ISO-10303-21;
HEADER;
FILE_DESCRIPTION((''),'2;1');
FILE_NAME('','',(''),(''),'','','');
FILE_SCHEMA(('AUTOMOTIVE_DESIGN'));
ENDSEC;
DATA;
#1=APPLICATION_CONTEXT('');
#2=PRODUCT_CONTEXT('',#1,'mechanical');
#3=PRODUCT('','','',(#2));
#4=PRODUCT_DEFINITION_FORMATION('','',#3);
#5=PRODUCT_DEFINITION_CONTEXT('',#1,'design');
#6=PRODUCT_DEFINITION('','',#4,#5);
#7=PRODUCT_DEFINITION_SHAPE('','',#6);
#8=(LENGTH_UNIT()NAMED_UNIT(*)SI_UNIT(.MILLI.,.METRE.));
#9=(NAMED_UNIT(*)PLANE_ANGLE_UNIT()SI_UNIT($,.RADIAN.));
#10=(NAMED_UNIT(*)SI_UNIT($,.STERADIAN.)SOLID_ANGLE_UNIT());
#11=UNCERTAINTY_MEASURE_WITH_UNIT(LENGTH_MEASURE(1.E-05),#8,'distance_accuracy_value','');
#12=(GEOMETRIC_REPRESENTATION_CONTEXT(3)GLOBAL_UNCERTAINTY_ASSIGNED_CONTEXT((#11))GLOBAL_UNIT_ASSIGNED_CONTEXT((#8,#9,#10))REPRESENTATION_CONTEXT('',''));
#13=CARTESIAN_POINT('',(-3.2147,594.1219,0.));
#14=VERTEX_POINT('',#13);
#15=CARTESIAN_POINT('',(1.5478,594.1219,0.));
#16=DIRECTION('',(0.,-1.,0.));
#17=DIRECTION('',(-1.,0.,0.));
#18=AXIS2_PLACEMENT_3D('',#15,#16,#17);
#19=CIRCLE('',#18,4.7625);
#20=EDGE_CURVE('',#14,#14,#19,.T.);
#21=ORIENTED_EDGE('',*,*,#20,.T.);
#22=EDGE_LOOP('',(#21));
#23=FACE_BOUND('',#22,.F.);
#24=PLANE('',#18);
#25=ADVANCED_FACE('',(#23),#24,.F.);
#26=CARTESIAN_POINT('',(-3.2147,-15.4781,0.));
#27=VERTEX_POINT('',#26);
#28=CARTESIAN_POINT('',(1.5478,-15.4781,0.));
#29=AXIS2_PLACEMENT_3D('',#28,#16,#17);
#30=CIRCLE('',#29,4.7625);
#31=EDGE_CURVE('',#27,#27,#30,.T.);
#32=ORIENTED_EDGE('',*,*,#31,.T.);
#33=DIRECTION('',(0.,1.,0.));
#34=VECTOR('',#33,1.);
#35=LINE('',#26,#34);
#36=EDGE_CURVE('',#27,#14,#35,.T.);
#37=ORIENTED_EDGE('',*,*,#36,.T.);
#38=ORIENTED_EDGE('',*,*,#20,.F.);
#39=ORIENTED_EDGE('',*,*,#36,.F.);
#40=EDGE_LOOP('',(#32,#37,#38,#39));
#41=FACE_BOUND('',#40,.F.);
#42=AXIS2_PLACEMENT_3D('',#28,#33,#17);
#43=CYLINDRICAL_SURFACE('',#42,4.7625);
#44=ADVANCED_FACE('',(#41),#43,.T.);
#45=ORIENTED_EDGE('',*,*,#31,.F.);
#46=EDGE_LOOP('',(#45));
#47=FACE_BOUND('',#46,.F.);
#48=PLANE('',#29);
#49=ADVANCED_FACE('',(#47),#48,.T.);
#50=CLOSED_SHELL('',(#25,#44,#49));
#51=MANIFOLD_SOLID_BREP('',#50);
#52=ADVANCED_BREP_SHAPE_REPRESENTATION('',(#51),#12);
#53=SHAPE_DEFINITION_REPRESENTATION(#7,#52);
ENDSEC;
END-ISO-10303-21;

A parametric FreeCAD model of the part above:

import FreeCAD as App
import Part
import Sketcher
from FreeCAD import Vector
Q = App.Units.Quantity


def add_polygon(sketch, points):
    """Adds a closed chain of lines whose ends are joined by coincident constraints."""
    first, n = sketch.GeometryCount, len(points)
    for a, b in zip(points, points[1:] + points[:1]):
        sketch.addGeometry(Part.LineSegment(App.Vector(*a, 0), App.Vector(*b, 0)), False)
    for i in range(n):
        sketch.addConstraint(Sketcher.Constraint("Coincident", first + i, 2, first + (i + 1) % n, 1))

doc = App.newDocument("Part")
body = doc.addObject("PartDesign::Body", "Body")

# Sketch on XY plane
sketch1 = body.newObject("Sketcher::SketchObject", "Sketch")
sketch1.AttachmentSupport = (doc.getObject("XY_Plane"), [""])
sketch1.MapMode = "FlatFace"
add_polygon(sketch1, [(1.5, 594.1), (-3.2, 594.1), (-3.2, -15.5), (1.5, -15.5)])  # lines 0-3
sketch1.addGeometry(Part.LineSegment(Vector(1.5, 594.1, 0), Vector(1.5, -15.5, 0)), True)  # axis
sketch1.addConstraint(Sketcher.Constraint("Horizontal", 0))
sketch1.addConstraint(Sketcher.Constraint("Vertical", 1))
sketch1.addConstraint(Sketcher.Constraint("Horizontal", 2))
sketch1.addConstraint(Sketcher.Constraint("Vertical", 3))
sketch1.addConstraint(Sketcher.Constraint("Vertical", 4))
sketch1.addConstraint(Sketcher.Constraint("Coincident", 4, 1, 3, 2))
sketch1.addConstraint(Sketcher.Constraint("Horizontal", 1, 2, 4, 2))
sketch1.addConstraint(Sketcher.Constraint("DistanceY", 1, 2, 1, 1, Q("24 in")))
sketch1.addConstraint(Sketcher.Constraint("DistanceX", 0, 2, 0, 1, Q("0.1875 in")))
sketch1.addConstraint(Sketcher.Constraint("DistanceY", -1, 1, 0, 2, Q("23.3906299 in")))
sketch1.addConstraint(Sketcher.Constraint("DistanceX", 0, 2, -1, 1, 3.2147))
revolution = body.newObject("PartDesign::Revolution", "Revolution")
revolution.Profile = sketch1
revolution.ReferenceAxis = (sketch1, ["Axis0"])
revolution.Angle = 360

doc.recompute()
